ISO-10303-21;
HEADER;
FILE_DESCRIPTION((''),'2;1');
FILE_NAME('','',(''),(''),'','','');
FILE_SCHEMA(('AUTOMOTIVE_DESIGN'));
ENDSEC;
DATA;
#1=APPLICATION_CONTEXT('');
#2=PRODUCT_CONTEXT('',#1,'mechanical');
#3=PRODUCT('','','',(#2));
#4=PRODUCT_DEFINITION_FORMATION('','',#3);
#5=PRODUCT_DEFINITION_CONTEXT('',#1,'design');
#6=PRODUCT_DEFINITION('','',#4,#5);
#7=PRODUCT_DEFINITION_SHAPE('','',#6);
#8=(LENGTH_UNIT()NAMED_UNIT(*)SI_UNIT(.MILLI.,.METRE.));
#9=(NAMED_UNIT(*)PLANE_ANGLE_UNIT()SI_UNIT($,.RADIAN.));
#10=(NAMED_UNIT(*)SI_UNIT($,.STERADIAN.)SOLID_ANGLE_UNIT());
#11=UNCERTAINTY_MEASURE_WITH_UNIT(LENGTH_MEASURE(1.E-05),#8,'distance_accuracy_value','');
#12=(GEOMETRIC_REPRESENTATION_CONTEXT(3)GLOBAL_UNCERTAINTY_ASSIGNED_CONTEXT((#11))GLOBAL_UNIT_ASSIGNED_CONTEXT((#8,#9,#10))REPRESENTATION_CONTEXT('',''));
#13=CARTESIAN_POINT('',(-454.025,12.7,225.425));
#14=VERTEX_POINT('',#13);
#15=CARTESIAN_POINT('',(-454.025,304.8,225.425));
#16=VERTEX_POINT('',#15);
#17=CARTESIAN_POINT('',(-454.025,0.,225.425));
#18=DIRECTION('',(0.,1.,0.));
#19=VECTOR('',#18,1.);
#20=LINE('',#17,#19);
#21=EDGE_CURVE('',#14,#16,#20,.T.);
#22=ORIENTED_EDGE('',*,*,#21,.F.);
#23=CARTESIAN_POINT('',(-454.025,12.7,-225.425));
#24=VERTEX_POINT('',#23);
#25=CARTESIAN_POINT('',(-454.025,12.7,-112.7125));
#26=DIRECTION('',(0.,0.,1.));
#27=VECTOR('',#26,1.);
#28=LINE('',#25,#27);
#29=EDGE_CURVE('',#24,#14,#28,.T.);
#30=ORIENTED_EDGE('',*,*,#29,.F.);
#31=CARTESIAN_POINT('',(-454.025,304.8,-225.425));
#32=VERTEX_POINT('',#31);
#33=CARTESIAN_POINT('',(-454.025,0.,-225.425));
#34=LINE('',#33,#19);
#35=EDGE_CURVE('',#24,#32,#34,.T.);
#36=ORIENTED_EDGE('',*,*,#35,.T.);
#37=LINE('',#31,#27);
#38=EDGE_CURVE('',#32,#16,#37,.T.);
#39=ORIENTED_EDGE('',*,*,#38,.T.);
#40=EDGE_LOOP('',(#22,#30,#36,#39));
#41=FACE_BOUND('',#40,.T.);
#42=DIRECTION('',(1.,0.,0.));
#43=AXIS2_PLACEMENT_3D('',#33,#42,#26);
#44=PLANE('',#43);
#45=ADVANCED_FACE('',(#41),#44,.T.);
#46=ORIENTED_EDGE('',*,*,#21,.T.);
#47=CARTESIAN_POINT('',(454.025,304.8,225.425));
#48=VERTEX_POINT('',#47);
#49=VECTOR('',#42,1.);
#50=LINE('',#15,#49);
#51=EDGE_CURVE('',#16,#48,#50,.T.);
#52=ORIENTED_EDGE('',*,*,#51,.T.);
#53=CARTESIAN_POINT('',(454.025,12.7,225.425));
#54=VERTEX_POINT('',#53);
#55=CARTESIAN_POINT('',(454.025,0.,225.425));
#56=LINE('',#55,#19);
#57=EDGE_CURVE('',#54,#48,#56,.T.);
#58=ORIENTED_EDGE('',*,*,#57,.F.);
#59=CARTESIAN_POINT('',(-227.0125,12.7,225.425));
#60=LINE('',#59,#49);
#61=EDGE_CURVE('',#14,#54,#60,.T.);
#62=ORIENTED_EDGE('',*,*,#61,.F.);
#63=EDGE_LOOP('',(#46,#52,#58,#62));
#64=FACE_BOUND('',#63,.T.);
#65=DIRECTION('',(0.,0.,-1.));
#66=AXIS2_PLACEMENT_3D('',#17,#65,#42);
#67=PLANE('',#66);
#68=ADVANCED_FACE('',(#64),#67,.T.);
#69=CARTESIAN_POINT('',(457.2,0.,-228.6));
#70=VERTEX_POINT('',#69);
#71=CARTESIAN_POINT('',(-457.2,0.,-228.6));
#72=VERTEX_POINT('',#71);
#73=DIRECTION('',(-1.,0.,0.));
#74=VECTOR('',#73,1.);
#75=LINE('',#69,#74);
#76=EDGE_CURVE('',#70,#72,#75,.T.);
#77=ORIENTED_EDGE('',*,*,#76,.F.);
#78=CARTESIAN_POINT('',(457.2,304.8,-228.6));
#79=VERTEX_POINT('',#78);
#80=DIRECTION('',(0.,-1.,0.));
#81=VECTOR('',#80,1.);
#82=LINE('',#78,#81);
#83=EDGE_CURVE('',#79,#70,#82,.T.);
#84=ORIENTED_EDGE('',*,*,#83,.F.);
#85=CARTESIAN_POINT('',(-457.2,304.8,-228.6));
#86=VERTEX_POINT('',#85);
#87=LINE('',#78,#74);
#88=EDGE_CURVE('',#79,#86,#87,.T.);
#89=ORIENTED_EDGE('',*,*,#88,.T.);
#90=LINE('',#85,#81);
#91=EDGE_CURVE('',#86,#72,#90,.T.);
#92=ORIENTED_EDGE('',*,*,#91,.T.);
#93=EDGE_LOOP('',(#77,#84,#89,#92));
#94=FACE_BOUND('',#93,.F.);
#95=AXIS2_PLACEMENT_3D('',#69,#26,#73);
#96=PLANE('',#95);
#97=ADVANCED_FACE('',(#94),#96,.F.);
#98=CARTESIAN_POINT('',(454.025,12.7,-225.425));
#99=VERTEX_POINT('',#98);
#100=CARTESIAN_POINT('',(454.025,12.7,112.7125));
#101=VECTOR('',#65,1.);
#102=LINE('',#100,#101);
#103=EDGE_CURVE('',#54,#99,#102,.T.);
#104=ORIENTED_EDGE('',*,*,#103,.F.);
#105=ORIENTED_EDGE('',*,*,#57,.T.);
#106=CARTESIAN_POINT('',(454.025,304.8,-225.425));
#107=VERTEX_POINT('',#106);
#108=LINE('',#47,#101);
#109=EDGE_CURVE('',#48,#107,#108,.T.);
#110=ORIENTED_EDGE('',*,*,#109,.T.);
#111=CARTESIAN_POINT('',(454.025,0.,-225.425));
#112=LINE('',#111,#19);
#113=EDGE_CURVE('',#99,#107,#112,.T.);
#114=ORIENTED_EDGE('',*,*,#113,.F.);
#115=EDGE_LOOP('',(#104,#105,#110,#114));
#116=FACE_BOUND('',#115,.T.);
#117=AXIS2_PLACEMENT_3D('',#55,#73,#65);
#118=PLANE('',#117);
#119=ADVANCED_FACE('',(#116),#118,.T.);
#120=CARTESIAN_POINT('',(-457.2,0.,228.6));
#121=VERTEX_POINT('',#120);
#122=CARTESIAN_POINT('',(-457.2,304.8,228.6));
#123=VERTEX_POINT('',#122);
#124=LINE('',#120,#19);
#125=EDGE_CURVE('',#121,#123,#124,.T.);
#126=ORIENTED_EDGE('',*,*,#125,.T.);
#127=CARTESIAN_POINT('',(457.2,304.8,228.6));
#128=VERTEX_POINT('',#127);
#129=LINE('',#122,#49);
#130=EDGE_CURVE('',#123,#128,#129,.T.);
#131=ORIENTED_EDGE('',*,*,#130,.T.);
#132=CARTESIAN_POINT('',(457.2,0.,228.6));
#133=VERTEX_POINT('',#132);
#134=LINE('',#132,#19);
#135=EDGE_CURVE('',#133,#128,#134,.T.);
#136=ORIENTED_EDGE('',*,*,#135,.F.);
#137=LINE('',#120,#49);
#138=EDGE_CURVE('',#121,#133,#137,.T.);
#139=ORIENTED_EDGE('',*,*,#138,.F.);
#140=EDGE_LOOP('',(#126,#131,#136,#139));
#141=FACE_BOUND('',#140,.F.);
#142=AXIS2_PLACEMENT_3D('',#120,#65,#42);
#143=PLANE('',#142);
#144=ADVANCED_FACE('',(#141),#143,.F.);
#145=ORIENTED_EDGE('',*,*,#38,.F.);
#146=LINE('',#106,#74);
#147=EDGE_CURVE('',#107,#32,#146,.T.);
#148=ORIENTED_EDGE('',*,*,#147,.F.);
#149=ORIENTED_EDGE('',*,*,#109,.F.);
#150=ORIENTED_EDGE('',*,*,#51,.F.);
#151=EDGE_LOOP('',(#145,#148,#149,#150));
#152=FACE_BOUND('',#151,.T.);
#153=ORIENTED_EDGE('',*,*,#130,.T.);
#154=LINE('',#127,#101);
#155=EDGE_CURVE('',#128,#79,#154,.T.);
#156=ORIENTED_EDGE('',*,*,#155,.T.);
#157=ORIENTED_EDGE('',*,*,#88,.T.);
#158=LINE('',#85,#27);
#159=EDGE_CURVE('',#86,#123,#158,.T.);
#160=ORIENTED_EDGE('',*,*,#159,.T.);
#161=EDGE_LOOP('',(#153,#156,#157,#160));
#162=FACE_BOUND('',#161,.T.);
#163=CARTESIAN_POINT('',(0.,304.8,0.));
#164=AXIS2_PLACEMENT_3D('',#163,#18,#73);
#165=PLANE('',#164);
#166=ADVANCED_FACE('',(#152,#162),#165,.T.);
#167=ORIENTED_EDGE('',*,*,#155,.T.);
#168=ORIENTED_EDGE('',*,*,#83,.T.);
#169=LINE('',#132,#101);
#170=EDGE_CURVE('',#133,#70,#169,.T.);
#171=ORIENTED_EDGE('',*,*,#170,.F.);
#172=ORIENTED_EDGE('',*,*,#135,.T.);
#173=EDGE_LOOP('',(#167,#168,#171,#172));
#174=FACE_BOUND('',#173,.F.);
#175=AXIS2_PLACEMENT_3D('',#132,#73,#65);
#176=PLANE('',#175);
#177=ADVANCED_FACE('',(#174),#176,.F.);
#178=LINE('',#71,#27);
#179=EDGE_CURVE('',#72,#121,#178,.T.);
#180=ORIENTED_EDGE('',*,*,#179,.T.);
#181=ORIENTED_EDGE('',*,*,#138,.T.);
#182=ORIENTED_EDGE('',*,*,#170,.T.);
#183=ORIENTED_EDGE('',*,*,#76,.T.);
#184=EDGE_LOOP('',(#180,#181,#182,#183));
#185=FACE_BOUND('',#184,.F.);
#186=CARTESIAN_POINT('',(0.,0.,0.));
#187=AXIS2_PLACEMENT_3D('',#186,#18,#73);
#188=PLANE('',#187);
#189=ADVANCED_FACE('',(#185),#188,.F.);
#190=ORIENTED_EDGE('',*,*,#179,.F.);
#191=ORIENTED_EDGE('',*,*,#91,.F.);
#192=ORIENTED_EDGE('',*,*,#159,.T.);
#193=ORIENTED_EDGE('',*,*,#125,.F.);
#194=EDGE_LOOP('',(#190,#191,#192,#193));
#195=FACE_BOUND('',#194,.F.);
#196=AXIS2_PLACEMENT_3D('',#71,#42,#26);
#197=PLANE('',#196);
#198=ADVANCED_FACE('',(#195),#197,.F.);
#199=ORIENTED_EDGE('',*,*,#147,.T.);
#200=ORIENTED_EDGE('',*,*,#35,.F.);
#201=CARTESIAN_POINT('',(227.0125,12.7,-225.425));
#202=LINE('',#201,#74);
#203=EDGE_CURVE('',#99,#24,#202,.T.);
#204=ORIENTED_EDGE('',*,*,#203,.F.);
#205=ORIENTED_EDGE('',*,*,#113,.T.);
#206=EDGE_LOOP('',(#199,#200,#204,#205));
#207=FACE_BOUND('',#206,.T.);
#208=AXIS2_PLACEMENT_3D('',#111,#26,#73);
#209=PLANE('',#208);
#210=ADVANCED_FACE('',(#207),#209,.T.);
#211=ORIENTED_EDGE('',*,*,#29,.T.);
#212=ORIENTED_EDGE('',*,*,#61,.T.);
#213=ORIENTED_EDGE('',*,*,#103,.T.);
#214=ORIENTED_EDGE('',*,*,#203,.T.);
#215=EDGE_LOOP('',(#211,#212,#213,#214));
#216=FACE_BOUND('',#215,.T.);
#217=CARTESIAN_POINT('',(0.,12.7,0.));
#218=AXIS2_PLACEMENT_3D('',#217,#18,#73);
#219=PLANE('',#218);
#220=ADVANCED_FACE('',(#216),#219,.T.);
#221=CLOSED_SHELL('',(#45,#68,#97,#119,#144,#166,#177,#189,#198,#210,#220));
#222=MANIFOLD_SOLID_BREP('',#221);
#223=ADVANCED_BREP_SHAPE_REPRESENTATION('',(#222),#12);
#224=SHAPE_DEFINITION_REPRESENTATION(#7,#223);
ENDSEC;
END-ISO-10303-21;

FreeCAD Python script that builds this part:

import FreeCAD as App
import Part
import Sketcher
Q = App.Units.Quantity

doc = App.newDocument("Part")
body = doc.addObject("PartDesign::Body", "Body")

# Sketch on XZ plane
sketch1 = doc.addObject("Sketcher::SketchObject", "Sketch")
body.addObject(sketch1)
sketch1.AttachmentSupport = (doc.XZ_Plane, [""])
sketch1.MapMode = "FlatFace"
sketch1.addGeometry([
    Part.LineSegment(App.Vector(-457, -229, 0), App.Vector(-457, 229, 0)),  # 0
    Part.LineSegment(App.Vector(-457, 229, 0), App.Vector(457, 229, 0)),  # 1
    Part.LineSegment(App.Vector(457, 229, 0), App.Vector(457, -229, 0)),  # 2
    Part.LineSegment(App.Vector(457, -229, 0), App.Vector(-457, -229, 0)),  # 3
    Part.LineSegment(App.Vector(454, 225, 0), App.Vector(-454, 225, 0)),  # 4
    Part.LineSegment(App.Vector(-454, 225, 0), App.Vector(-454, -225, 0)),  # 5
    Part.LineSegment(App.Vector(-454, -225, 0), App.Vector(454, -225, 0)),  # 6
    Part.LineSegment(App.Vector(454, -225, 0), App.Vector(454, 225, 0)),  # 7
], False)
sketch1.addConstraint([
    Sketcher.Constraint("Coincident", 0, 2, 1, 1),
    Sketcher.Constraint("Coincident", 1, 2, 2, 1),
    Sketcher.Constraint("Coincident", 2, 2, 3, 1),
    Sketcher.Constraint("Coincident", 3, 2, 0, 1),
    Sketcher.Constraint("Coincident", 4, 2, 5, 1),
    Sketcher.Constraint("Coincident", 5, 2, 6, 1),
    Sketcher.Constraint("Coincident", 6, 2, 7, 1),
    Sketcher.Constraint("Coincident", 7, 2, 4, 1),
    Sketcher.Constraint("Vertical", 0),
    Sketcher.Constraint("Horizontal", 1),
    Sketcher.Constraint("Vertical", 2),
    Sketcher.Constraint("Horizontal", 3),
    Sketcher.Constraint("Horizontal", 4),
    Sketcher.Constraint("Vertical", 5),
    Sketcher.Constraint("Horizontal", 6),
    Sketcher.Constraint("Vertical", 7),
    Sketcher.Constraint("Symmetric", 0, 2, 2, 2, -1, 1),
    Sketcher.Constraint("Symmetric", 4, 2, 6, 2, -1, 1),
    Sketcher.Constraint("DistanceX", 1, 1, 1, 2, Q("36 in")),
    Sketcher.Constraint("DistanceY", 0, 1, 0, 2, Q("18 in")),
    Sketcher.Constraint("DistanceX", 0, 2, 4, 2, Q("0.125 in")),
    Sketcher.Constraint("DistanceY", 4, 2, 0, 2, Q("0.125 in")),
])
pad1 = doc.addObject("PartDesign::Pad", "Pad")
body.addObject(pad1)
pad1.Profile = sketch1
pad1.Length = Q("12 in")
pad1.Reversed = True

# Sketch on XZ plane
sketch2 = doc.addObject("Sketcher::SketchObject", "Sketch001")
body.addObject(sketch2)
sketch2.AttachmentSupport = (doc.XZ_Plane, [""])
sketch2.MapMode = "FlatFace"
sketch2.addGeometry([
    Part.LineSegment(App.Vector(-457, -229, 0), App.Vector(-457, 229, 0)),
    Part.LineSegment(App.Vector(-457, 229, 0), App.Vector(457, 229, 0)),
    Part.LineSegment(App.Vector(457, 229, 0), App.Vector(457, -229, 0)),
    Part.LineSegment(App.Vector(457, -229, 0), App.Vector(-457, -229, 0)),
], False)
sketch2.addConstraint([
    Sketcher.Constraint("Coincident", 0, 2, 1, 1),
    Sketcher.Constraint("Coincident", 1, 2, 2, 1),
    Sketcher.Constraint("Coincident", 2, 2, 3, 1),
    Sketcher.Constraint("Coincident", 3, 2, 0, 1),
    Sketcher.Constraint("Vertical", 0),
    Sketcher.Constraint("Horizontal", 1),
    Sketcher.Constraint("Vertical", 2),
    Sketcher.Constraint("Horizontal", 3),
    Sketcher.Constraint("Symmetric", 0, 2, 2, 2, -1, 1),
    Sketcher.Constraint("DistanceX", 1, 1, 1, 2, Q("36 in")),
    Sketcher.Constraint("DistanceY", 0, 1, 0, 2, Q("18 in")),
])
pad2 = doc.addObject("PartDesign::Pad", "Pad001")
body.addObject(pad2)
pad2.Profile = sketch2
pad2.Length = Q("0.5 in")
pad2.Reversed = True

doc.recompute()
